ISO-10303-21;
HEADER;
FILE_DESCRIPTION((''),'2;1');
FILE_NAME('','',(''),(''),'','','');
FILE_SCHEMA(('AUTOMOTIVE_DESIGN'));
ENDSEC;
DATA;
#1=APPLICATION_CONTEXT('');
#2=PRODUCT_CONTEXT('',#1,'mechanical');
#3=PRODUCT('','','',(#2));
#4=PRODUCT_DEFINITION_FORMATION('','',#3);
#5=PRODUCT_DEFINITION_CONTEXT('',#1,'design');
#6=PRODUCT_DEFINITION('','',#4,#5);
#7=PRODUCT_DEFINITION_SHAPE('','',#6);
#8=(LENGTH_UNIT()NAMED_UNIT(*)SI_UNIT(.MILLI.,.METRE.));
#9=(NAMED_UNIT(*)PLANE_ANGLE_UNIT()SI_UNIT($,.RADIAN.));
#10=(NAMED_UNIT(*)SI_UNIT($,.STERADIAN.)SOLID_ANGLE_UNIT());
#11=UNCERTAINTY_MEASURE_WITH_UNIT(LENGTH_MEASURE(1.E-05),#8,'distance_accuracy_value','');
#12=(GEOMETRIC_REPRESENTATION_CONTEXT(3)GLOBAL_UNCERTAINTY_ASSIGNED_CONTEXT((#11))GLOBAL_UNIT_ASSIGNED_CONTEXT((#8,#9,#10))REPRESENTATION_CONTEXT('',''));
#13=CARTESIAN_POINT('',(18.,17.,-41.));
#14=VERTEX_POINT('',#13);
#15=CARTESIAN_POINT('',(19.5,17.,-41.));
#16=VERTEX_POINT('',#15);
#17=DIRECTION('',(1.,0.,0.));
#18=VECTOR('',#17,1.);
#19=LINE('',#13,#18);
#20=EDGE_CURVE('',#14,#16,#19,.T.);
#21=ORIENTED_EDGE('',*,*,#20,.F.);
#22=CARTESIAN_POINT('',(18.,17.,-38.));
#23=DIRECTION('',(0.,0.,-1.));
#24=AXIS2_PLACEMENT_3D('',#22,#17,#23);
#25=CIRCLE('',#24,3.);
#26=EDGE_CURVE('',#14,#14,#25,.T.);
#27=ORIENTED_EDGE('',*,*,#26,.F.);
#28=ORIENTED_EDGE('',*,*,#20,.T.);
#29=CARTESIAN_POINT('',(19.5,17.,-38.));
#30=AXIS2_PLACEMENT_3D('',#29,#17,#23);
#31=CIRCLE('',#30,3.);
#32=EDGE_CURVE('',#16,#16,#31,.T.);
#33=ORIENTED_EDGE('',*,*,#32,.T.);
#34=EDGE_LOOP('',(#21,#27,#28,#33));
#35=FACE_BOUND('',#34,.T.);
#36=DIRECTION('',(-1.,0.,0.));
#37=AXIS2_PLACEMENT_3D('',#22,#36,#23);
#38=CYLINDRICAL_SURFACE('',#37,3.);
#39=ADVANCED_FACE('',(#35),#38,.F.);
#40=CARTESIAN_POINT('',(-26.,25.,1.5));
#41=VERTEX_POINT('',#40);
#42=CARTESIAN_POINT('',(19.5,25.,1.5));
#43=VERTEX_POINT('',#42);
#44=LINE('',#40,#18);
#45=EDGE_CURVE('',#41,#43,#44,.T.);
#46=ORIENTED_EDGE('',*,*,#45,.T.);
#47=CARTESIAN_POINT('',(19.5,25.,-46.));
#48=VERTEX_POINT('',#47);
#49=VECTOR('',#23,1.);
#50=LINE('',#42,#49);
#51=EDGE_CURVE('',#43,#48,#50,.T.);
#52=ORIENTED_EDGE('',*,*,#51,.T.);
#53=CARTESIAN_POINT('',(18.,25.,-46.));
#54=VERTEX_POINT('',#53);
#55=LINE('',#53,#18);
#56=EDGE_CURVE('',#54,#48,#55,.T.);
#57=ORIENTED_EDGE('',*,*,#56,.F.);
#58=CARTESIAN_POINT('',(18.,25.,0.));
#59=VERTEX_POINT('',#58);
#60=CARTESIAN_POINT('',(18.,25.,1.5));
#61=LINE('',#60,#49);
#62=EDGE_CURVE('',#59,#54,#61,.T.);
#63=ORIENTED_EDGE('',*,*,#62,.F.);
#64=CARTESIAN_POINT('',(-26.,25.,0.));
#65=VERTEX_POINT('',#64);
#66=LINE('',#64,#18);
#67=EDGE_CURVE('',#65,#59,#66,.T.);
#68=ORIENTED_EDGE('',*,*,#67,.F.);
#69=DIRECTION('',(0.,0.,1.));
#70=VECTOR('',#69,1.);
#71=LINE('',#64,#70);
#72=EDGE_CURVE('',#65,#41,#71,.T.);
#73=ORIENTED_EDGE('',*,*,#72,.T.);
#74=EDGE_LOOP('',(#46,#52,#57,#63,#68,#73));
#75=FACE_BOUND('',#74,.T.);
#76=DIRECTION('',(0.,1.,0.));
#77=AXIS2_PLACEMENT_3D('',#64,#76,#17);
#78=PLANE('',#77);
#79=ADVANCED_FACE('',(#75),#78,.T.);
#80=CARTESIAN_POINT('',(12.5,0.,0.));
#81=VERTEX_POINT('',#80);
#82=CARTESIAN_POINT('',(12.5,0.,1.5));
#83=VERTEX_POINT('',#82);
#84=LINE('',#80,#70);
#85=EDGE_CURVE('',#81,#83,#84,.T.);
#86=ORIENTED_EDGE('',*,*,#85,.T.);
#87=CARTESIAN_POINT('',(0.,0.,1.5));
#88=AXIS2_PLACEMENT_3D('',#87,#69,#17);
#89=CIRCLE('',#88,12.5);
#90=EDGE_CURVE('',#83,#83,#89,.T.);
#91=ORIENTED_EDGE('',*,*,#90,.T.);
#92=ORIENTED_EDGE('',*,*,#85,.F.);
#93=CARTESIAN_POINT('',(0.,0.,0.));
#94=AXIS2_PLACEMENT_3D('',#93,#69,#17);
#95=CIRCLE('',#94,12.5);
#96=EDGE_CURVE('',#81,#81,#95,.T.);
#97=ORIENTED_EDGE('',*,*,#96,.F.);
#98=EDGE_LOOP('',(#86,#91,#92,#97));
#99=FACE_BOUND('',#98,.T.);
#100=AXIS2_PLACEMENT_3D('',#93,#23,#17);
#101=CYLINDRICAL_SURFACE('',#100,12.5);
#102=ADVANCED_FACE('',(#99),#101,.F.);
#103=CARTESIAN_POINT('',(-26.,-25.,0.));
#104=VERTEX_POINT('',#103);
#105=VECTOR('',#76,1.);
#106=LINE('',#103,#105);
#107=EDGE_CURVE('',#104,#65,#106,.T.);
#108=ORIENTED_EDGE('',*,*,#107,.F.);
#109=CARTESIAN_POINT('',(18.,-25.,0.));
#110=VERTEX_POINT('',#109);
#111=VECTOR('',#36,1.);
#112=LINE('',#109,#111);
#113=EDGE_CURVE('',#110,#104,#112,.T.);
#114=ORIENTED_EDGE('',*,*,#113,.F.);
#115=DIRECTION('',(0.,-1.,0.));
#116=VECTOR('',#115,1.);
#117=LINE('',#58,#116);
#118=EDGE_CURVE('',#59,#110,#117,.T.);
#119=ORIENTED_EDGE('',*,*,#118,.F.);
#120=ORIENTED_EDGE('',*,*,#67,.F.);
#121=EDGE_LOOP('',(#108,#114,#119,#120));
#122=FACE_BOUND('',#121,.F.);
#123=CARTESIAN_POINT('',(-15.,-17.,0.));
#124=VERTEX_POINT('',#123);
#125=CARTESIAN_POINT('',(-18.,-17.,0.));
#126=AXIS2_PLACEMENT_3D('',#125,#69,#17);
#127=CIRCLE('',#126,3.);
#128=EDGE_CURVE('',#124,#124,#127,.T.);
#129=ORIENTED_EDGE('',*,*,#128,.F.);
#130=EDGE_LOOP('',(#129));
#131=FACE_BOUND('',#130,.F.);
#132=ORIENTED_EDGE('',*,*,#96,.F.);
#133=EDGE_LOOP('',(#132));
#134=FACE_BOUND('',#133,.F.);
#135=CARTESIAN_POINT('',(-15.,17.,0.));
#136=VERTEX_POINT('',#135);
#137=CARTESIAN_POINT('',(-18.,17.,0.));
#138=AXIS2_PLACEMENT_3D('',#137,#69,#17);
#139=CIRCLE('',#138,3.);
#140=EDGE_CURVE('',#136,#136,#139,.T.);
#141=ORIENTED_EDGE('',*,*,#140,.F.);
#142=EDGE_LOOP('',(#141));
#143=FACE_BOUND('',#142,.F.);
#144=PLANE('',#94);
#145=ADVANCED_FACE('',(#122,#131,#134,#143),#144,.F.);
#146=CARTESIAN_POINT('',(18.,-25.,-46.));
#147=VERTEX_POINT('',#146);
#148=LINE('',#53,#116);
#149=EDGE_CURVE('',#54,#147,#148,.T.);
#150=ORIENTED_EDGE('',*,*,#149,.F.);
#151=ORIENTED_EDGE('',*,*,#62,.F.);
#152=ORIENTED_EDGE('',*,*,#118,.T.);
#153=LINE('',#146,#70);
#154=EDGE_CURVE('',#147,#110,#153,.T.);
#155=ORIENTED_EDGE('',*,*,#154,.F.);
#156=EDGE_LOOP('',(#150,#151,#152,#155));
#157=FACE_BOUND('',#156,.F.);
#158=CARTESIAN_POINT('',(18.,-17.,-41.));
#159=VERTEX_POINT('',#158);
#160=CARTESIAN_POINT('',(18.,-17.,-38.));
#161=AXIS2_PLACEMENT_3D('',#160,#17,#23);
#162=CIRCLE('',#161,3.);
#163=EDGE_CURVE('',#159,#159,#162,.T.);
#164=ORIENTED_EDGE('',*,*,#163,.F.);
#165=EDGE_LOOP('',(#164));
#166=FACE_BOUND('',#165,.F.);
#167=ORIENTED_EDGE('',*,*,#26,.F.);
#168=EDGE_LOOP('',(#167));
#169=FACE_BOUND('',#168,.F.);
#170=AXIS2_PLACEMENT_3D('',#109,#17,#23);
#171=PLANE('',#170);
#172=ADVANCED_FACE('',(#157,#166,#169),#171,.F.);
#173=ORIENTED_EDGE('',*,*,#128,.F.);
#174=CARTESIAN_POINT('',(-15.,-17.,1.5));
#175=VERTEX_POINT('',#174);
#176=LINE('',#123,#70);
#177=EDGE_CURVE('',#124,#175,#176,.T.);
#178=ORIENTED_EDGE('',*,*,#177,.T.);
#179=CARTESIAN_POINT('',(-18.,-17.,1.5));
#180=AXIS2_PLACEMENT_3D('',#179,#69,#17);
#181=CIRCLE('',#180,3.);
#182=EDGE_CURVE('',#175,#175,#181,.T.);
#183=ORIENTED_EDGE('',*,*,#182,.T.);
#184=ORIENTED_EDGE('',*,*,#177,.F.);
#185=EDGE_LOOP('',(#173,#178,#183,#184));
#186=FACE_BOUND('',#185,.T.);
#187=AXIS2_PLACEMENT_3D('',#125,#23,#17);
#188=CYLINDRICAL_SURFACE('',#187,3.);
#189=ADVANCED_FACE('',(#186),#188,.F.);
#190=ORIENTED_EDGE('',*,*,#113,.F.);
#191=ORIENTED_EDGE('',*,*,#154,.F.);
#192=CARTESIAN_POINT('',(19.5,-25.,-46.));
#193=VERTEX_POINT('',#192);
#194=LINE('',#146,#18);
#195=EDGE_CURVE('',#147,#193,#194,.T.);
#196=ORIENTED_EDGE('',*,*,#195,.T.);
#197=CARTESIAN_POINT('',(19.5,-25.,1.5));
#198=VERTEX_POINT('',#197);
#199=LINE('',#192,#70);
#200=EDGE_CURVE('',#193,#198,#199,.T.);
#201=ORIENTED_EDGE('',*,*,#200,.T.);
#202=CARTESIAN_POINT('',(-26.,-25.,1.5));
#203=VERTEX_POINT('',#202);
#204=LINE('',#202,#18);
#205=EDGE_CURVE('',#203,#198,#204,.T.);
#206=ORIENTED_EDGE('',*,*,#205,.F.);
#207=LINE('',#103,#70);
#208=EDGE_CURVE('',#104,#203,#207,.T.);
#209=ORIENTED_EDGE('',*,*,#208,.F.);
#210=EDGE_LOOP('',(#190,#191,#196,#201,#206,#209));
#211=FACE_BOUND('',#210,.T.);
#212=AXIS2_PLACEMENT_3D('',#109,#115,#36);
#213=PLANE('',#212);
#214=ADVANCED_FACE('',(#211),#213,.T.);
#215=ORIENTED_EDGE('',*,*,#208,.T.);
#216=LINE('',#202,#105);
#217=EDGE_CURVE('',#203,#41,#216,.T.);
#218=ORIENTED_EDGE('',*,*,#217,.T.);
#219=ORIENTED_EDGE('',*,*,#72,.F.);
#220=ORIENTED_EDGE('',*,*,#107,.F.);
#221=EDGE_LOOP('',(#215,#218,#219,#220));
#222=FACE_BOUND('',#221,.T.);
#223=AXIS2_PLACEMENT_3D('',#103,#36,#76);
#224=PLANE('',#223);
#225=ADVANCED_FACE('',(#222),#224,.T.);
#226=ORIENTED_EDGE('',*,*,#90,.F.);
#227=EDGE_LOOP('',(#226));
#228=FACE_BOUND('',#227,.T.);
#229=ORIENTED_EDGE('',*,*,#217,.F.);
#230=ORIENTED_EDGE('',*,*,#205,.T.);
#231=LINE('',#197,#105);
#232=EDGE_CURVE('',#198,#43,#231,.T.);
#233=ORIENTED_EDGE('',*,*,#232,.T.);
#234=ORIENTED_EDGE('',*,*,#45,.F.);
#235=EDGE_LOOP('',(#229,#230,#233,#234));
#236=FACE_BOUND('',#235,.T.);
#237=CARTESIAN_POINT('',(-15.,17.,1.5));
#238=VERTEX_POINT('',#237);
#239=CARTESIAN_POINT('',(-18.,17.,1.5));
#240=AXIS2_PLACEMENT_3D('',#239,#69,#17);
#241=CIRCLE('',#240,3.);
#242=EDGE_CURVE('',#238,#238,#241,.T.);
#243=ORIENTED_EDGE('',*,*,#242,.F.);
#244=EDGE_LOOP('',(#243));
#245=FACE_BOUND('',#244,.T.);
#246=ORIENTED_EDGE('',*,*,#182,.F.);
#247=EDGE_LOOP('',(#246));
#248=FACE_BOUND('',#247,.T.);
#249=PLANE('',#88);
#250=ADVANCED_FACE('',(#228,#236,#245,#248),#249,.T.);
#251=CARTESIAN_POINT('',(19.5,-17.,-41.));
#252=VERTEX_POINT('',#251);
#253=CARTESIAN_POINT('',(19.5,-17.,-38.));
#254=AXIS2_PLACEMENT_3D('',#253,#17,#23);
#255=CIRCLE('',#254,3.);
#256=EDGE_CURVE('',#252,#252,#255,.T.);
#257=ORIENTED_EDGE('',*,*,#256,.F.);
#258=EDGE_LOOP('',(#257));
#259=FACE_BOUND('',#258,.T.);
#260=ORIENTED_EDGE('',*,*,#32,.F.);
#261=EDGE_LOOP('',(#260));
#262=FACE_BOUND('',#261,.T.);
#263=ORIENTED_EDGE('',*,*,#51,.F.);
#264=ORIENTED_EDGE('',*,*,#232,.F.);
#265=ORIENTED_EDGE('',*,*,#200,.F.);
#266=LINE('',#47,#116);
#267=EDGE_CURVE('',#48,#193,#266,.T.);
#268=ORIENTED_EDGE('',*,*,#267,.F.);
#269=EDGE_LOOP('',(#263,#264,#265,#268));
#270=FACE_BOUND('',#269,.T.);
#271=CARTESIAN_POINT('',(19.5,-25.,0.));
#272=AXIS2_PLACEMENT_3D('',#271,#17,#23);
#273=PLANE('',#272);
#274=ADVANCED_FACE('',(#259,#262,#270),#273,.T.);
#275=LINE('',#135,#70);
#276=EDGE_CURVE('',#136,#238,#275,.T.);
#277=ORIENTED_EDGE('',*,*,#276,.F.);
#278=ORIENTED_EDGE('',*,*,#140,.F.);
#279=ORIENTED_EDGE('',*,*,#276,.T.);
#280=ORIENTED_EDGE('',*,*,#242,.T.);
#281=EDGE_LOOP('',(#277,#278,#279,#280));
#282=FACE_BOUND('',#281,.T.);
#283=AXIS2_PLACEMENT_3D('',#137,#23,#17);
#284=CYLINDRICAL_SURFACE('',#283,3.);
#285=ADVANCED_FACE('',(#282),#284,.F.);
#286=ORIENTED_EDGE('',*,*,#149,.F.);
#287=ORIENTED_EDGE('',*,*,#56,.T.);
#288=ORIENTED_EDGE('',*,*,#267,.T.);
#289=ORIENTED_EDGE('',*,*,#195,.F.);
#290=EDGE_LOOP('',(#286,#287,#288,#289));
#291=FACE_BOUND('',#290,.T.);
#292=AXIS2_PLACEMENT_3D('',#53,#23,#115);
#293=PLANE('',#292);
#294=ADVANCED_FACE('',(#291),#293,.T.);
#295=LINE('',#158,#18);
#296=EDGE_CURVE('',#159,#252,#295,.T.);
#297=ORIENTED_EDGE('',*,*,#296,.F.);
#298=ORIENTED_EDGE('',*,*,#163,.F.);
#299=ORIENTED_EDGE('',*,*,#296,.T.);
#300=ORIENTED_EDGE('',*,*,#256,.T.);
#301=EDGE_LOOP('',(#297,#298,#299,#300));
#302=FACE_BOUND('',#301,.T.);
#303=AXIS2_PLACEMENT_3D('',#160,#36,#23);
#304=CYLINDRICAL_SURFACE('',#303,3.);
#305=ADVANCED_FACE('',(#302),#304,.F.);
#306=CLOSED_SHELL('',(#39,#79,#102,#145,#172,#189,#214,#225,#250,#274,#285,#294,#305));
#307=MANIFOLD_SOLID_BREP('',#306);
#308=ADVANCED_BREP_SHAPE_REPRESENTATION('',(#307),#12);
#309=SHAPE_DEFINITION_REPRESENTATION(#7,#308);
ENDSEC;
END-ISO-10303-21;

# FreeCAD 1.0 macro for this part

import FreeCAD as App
import Part
import Sketcher


def add_polygon(sketch, points):
    """Adds a closed chain of lines whose ends are joined by coincident constraints."""
    first, n = sketch.GeometryCount, len(points)
    for a, b in zip(points, points[1:] + points[:1]):
        sketch.addGeometry(Part.LineSegment(App.Vector(*a, 0), App.Vector(*b, 0)), False)
    for i in range(n):
        sketch.addConstraint(Sketcher.Constraint("Coincident", first + i, 2, first + (i + 1) % n, 1))

doc = App.newDocument("Part")
body = doc.addObject("PartDesign::Body", "Body")

sketch1 = doc.addObject("Sketcher::SketchObject", "Sketch")
body.addObject(sketch1)
sketch1.AttachmentSupport = (doc.XY_Plane, [""])
sketch1.MapMode = "FlatFace"
add_polygon(sketch1, [(18, 25), (-26, 25), (-26, -25), (18, -25)])
sketch1.addGeometry(Part.Circle(App.Vector(-18, -17, 0), App.Vector(0, 0, 1), 3), False)
sketch1.addGeometry(Part.Circle(App.Vector(-18, 17, 0), App.Vector(0, 0, 1), 3), False)
sketch1.addGeometry(Part.Circle(App.Vector(0, 0, 0), App.Vector(0, 0, 1), 12.5), False)
sketch1.addConstraint([
    Sketcher.Constraint("Horizontal", 0),
    Sketcher.Constraint("Vertical", 1),
    Sketcher.Constraint("Horizontal", 2),
    Sketcher.Constraint("Vertical", 3),
    Sketcher.Constraint("Coincident", 6, 3, -1, 1),
    Sketcher.Constraint("Equal", 4, 5),
    Sketcher.Constraint("Symmetric", 4, 3, 5, 3, -1),
    Sketcher.Constraint("Diameter", 4, 6.0),
    Sketcher.Constraint("Diameter", 6, 25.0),
    Sketcher.Constraint("DistanceX", 4, 3, -1, 1, 18.0),
    Sketcher.Constraint("DistanceX", 0, 2, -1, 1, 26.0),
    Sketcher.Constraint("DistanceY", -1, 1, 0, 2, 25.0),
    Sketcher.Constraint("DistanceY", 1, 2, -1, 1, 25.0),
    Sketcher.Constraint("DistanceX", -1, 1, 2, 2, 18.0),
    Sketcher.Constraint("DistanceY", 5, 3, 0, 2, 8.0),
])
pad1 = doc.addObject("PartDesign::Pad", "Pad")
body.addObject(pad1)
pad1.Profile = sketch1
pad1.Length = 1.5

sketch2 = doc.addObject("Sketcher::SketchObject", "Sketch001")
body.addObject(sketch2)
sketch2.AttachmentSupport = (doc.YZ_Plane, [""])
sketch2.MapMode = "FlatFace"
sketch2.AttachmentOffset = App.Placement(App.Vector(0, 0, 18), App.Rotation())
add_polygon(sketch2, [(25, -46), (25, 1.5), (-25, 1.5), (-25, -46)])
sketch2.addGeometry(Part.Circle(App.Vector(-17, -38, 0), App.Vector(0, 0, 1), 3), False)
sketch2.addGeometry(Part.Circle(App.Vector(17, -38, 0), App.Vector(0, 0, 1), 3), False)
sketch2.addConstraint([
    Sketcher.Constraint("Vertical", 0),
    Sketcher.Constraint("Horizontal", 1),
    Sketcher.Constraint("Vertical", 2),
    Sketcher.Constraint("Horizontal", 3),
    Sketcher.Constraint("Equal", 4, 5),
    Sketcher.Constraint("Symmetric", 4, 3, 5, 3, -2),
    Sketcher.Constraint("Diameter", 4, 6.0),
    Sketcher.Constraint("DistanceX", 1, 2, 1, 1, 50.0),
    Sketcher.Constraint("DistanceY", 0, 1, 0, 2, 47.5),
    Sketcher.Constraint("DistanceX", 5, 3, 0, 2, 8.0),
    Sketcher.Constraint("DistanceX", 1, 2, 4, 3, 8.0),
    Sketcher.Constraint("DistanceY", 2, 2, 4, 3, 8.0),
    Sketcher.Constraint("DistanceY", 4, 3, -1, 1, 38.0),
])
pad2 = doc.addObject("PartDesign::Pad", "Pad001")
body.addObject(pad2)
pad2.Profile = sketch2
pad2.Length = 1.5

doc.recompute()
